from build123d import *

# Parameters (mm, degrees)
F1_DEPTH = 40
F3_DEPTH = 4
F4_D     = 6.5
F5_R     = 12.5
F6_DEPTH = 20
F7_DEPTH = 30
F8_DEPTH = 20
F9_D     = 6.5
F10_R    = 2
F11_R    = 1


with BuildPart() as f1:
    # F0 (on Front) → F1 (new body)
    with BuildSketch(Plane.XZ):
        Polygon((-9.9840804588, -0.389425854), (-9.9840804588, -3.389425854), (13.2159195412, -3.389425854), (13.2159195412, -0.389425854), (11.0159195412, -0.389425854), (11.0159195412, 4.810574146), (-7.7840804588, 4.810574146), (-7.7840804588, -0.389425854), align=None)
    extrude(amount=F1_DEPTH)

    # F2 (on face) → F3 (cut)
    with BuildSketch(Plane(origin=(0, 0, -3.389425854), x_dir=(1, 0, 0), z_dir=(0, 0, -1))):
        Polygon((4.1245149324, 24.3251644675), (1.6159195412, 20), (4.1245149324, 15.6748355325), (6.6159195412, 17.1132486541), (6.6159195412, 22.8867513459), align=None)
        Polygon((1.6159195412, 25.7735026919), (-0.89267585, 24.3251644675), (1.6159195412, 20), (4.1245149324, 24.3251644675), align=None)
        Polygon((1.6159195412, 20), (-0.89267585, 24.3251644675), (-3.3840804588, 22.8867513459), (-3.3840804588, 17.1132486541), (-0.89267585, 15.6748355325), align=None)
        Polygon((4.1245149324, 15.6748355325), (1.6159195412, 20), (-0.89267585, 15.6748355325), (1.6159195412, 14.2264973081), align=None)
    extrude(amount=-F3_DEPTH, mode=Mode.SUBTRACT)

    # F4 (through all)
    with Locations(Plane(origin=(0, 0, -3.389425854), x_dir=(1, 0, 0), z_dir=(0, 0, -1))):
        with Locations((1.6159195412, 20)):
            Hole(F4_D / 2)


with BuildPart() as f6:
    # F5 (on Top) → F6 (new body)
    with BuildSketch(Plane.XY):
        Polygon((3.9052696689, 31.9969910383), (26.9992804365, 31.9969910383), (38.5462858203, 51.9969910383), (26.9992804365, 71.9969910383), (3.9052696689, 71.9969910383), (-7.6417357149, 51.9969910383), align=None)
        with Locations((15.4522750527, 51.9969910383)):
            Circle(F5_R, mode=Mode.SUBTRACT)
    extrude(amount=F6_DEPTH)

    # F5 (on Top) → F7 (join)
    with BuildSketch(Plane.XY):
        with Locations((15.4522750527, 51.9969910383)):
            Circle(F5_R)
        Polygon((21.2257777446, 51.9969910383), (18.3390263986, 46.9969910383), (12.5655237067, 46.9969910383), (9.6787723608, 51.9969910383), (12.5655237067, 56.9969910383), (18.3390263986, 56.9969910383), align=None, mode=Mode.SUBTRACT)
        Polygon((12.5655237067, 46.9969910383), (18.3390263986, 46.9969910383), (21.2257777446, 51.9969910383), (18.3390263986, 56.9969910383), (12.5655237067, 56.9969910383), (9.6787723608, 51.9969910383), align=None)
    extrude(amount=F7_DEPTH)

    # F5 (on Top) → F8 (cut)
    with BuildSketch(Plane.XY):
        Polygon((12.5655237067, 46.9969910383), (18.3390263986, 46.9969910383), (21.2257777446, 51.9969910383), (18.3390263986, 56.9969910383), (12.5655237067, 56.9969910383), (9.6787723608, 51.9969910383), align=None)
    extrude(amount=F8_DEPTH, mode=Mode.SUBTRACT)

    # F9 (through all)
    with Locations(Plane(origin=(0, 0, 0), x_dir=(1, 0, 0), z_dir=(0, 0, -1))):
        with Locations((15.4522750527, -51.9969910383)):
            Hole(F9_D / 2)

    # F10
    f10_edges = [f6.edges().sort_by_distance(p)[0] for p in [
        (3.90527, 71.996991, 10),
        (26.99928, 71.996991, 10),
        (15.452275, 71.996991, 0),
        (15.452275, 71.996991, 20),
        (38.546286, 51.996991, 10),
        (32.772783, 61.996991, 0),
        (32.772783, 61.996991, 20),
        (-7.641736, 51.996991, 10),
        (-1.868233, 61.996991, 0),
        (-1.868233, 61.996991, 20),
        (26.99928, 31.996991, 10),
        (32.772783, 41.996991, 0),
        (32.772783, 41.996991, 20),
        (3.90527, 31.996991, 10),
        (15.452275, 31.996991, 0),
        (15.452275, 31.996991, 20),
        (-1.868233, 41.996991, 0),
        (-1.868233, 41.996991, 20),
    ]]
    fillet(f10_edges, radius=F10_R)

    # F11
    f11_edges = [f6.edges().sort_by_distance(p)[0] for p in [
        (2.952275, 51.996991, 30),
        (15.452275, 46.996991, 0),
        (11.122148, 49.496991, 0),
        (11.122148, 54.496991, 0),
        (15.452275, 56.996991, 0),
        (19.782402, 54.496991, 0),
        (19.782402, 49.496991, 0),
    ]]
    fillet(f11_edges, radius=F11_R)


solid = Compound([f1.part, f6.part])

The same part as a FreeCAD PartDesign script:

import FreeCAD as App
import Part
import Sketcher
Q = App.Units.Quantity


def edges_at(feature, points):
    """Names of the edges that pass closest to the given points."""
    edges = feature.Shape.Edges
    near = lambda p: min(range(len(edges)), key=lambda i: edges[i].distToShape(Part.Vertex(*p))[0])
    return sorted({f"Edge{near(p) + 1}" for p in points})


def add_polygon(sketch, points):
    """Adds a closed chain of lines whose ends are joined by coincident constraints."""
    first, n = sketch.GeometryCount, len(points)
    for a, b in zip(points, points[1:] + points[:1]):
        sketch.addGeometry(Part.LineSegment(App.Vector(*a, 0), App.Vector(*b, 0)), False)
    for i in range(n):
        sketch.addConstraint(Sketcher.Constraint("Coincident", first + i, 2, first + (i + 1) % n, 1))

doc = App.newDocument("Part")
body = doc.addObject("PartDesign::Body", "Body")

# Sketch on XZ plane
sketch1 = doc.addObject("Sketcher::SketchObject", "Sketch")
body.addObject(sketch1)
sketch1.AttachmentSupport = (doc.XZ_Plane, [""])
sketch1.MapMode = "FlatFace"
add_polygon(sketch1, [(-10, -0.4), (-10, -3.4), (13.2, -3.4), (13.2, -0.4), (11, -0.4), (11, 4.8), (-7.8, 4.8), (-7.8, -0.4)])  # lines 0-7
sketch1.addConstraint(Sketcher.Constraint("Vertical", 0))
sketch1.addConstraint(Sketcher.Constraint("Horizontal", 1))
sketch1.addConstraint(Sketcher.Constraint("Vertical", 2))
sketch1.addConstraint(Sketcher.Constraint("Horizontal", 3))
sketch1.addConstraint(Sketcher.Constraint("Vertical", 4))
sketch1.addConstraint(Sketcher.Constraint("Horizontal", 5))
sketch1.addConstraint(Sketcher.Constraint("Vertical", 6))
sketch1.addConstraint(Sketcher.Constraint("Horizontal", 7))
sketch1.addConstraint(Sketcher.Constraint("Horizontal", 3, 2, 6, 2))
sketch1.addConstraint(Sketcher.Constraint("Equal", 3, 7))
sketch1.addConstraint(Sketcher.Constraint("DistanceY", 0, 2, 0, 1, Q("3 mm")))
sketch1.addConstraint(Sketcher.Constraint("DistanceX", 1, 1, 1, 2, Q("23.2 mm")))
sketch1.addConstraint(Sketcher.Constraint("DistanceX", 3, 2, 3, 1, Q("2.2 mm")))
sketch1.addConstraint(Sketcher.Constraint("DistanceY", 4, 1, 4, 2, Q("5.2 mm")))
sketch1.addConstraint(Sketcher.Constraint("DistanceX", 0, 2, -1, 1, Q("9.98408 mm")))
sketch1.addConstraint(Sketcher.Constraint("DistanceY", 0, 2, -1, 1, Q("3.389426 mm")))
pad1 = doc.addObject("PartDesign::Pad", "Pad")
body.addObject(pad1)
pad1.Profile = sketch1
pad1.Length = 40

# Sketch on XY plane
sketch2 = doc.addObject("Sketcher::SketchObject", "Sketch001")
body.addObject(sketch2)
sketch2.AttachmentSupport = (doc.XY_Plane, [""])
sketch2.MapMode = "FlatFace"
sketch2.AttachmentOffset = App.Placement(App.Vector(0, 0, -3.389426), App.Rotation())
add_polygon(sketch2, [(4.1, -15.7), (6.6, -17.1), (6.6, -22.9), (4.1, -24.3), (1.6, -25.8), (-0.9, -24.3), (-3.4, -22.9), (-3.4, -17.1), (-0.9, -15.7), (1.6, -14.2)])  # lines 0-9
sketch2.addConstraint(Sketcher.Constraint("Vertical", 1))
sketch2.addConstraint(Sketcher.Constraint("Vertical", 6))
sketch2.addConstraint(Sketcher.Constraint("Parallel", 2, 3))
sketch2.addConstraint(Sketcher.Constraint("Parallel", 0, 4))
sketch2.addConstraint(Sketcher.Constraint("Parallel", 4, 5))
sketch2.addConstraint(Sketcher.Constraint("Parallel", 3, 7))
sketch2.addConstraint(Sketcher.Constraint("Parallel", 7, 8))
sketch2.addConstraint(Sketcher.Constraint("Parallel", 5, 9))
sketch2.addConstraint(Sketcher.Constraint("Horizontal", 2, 2, 4, 2))
sketch2.addConstraint(Sketcher.Constraint("Horizontal", 1, 2, 5, 2))
sketch2.addConstraint(Sketcher.Constraint("Horizontal", 0, 2, 6, 2))
sketch2.addConstraint(Sketcher.Constraint("Horizontal", 7, 2, 9, 2))
sketch2.addConstraint(Sketcher.Constraint("Vertical", 4, 2, 7, 2))
sketch2.addConstraint(Sketcher.Constraint("Vertical", 3, 2, 8, 2))
sketch2.addConstraint(Sketcher.Constraint("Angle", 0, Q("-30 deg")))
sketch2.addConstraint(Sketcher.Constraint("DistanceX", 3, 2, 1, 2, Q("5 mm")))
sketch2.addConstraint(Sketcher.Constraint("DistanceY", 1, 2, 1, 1, Q("5.773503 mm")))
sketch2.addConstraint(Sketcher.Constraint("DistanceX", -1, 1, 0, 2, Q("6.61592 mm")))
sketch2.addConstraint(Sketcher.Constraint("DistanceY", 0, 2, -1, 1, Q("17.113249 mm")))
sketch2.addConstraint(Sketcher.Constraint("DistanceY", 3, 2, 2, 2, Q("1.448338 mm")))
pocket1 = doc.addObject("PartDesign::Pocket", "Pocket")
body.addObject(pocket1)
pocket1.Profile = sketch2
pocket1.Length = 4
pocket1.Reversed = True

# Sketch on XY plane
sketch3 = doc.addObject("Sketcher::SketchObject", "Sketch002")
body.addObject(sketch3)
sketch3.AttachmentSupport = (doc.XY_Plane, [""])
sketch3.MapMode = "FlatFace"
sketch3.AttachmentOffset = App.Placement(App.Vector(0, 0, -3.389426), App.Rotation())
sketch3.addGeometry(Part.Circle(App.Vector(1.6, -20, 0), App.Vector(0, 0, 1), 3.2), False)
sketch3.addConstraint(Sketcher.Constraint("Diameter", 0, Q("6.5 mm")))
sketch3.addConstraint(Sketcher.Constraint("DistanceY", 0, 3, -1, 1, Q("20 mm")))
sketch3.addConstraint(Sketcher.Constraint("DistanceX", -1, 1, 0, 3, Q("1.61592 mm")))
doc.recompute()
hole = doc.addObject("PartDesign::Hole", "Hole")
body.addObject(hole)
hole.Profile = sketch3
hole.ThreadType = "None"
hole.Diameter = 6.5
hole.DepthType = "ThroughAll"
hole.Reversed = True
body2 = doc.addObject("PartDesign::Body", "Body001")

# Sketch on XY plane
sketch4 = doc.addObject("Sketcher::SketchObject", "Sketch003")
body2.addObject(sketch4)
sketch4.AttachmentSupport = (doc.getObject("XY_Plane001"), [""])
sketch4.MapMode = "FlatFace"
add_polygon(sketch4, [(4, 32), (27, 32), (39, 52), (27, 72), (4, 72), (-8, 52)])  # lines 0-5
sketch4.addGeometry(Part.Circle(App.Vector(15, 52, 0), App.Vector(0, 0, 1), 12), False)  # 6
sketch4.addConstraint(Sketcher.Constraint("Horizontal", 0))
sketch4.addConstraint(Sketcher.Constraint("Horizontal", 3))
sketch4.addConstraint(Sketcher.Constraint("Parallel", 1, 4))
sketch4.addConstraint(Sketcher.Constraint("Parallel", 2, 5))
sketch4.addConstraint(Sketcher.Constraint("Horizontal", 6, 3, 1, 2))
sketch4.addConstraint(Sketcher.Constraint("Horizontal", 1, 2, 4, 2))
sketch4.addConstraint(Sketcher.Constraint("Vertical", 0, 2, 2, 2))
sketch4.addConstraint(Sketcher.Constraint("Vertical", 3, 2, 5, 2))
sketch4.addConstraint(Sketcher.Constraint("Diameter", 6, Q("25 mm")))
sketch4.addConstraint(Sketcher.Constraint("Angle", 1, Q("60 deg")))
sketch4.addConstraint(Sketcher.Constraint("DistanceY", 0, 2, 6, 3, Q("20 mm")))
sketch4.addConstraint(Sketcher.Constraint("DistanceX", 0, 1, 0, 2, Q("23.094011 mm")))
sketch4.addConstraint(Sketcher.Constraint("DistanceY", -1, 1, 6, 3, Q("51.996991 mm")))
sketch4.addConstraint(Sketcher.Constraint("DistanceX", -1, 1, 0, 2, Q("26.99928 mm")))
sketch4.addConstraint(Sketcher.Constraint("DistanceX", 6, 3, 1, 2, Q("23.094011 mm")))
pad2 = doc.addObject("PartDesign::Pad", "Pad001")
body2.addObject(pad2)
pad2.Profile = sketch4
pad2.Length = 20

# Sketch on XY plane
sketch5 = doc.addObject("Sketcher::SketchObject", "Sketch004")
body2.addObject(sketch5)
sketch5.AttachmentSupport = (doc.getObject("XY_Plane001"), [""])
sketch5.MapMode = "FlatFace"
sketch5.addGeometry(Part.Circle(App.Vector(15, 52, 0), App.Vector(0, 0, 1), 12), False)
sketch5.addConstraint(Sketcher.Constraint("Diameter", 0, Q("25 mm")))
sketch5.addConstraint(Sketcher.Constraint("DistanceY", -1, 1, 0, 3, Q("51.996991 mm")))
sketch5.addConstraint(Sketcher.Constraint("DistanceX", -1, 1, 0, 3, Q("15.452275 mm")))
pad3 = doc.addObject("PartDesign::Pad", "Pad002")
body2.addObject(pad3)
pad3.Profile = sketch5
pad3.Length = 30

# Sketch on XY plane
sketch6 = doc.addObject("Sketcher::SketchObject", "Sketch005")
body2.addObject(sketch6)
sketch6.AttachmentSupport = (doc.getObject("XY_Plane001"), [""])
sketch6.MapMode = "FlatFace"
add_polygon(sketch6, [(13, 47), (18, 47), (21, 52), (18, 57), (13, 57), (10, 52)])  # lines 0-5
sketch6.addConstraint(Sketcher.Constraint("Horizontal", 0))
sketch6.addConstraint(Sketcher.Constraint("Horizontal", 3))
sketch6.addConstraint(Sketcher.Constraint("Parallel", 1, 4))
sketch6.addConstraint(Sketcher.Constraint("Parallel", 2, 5))
sketch6.addConstraint(Sketcher.Constraint("Horizontal", 1, 2, 4, 2))
sketch6.addConstraint(Sketcher.Constraint("Vertical", 0, 2, 2, 2))
sketch6.addConstraint(Sketcher.Constraint("Vertical", 3, 2, 5, 2))
sketch6.addConstraint(Sketcher.Constraint("Angle", 1, Q("60 deg")))
sketch6.addConstraint(Sketcher.Constraint("DistanceY", 0, 2, 1, 2, Q("5 mm")))
sketch6.addConstraint(Sketcher.Constraint("DistanceX", 0, 1, 0, 2, Q("5.773503 mm")))
sketch6.addConstraint(Sketcher.Constraint("DistanceY", -1, 1, 0, 2, Q("46.996991 mm")))
sketch6.addConstraint(Sketcher.Constraint("DistanceX", -1, 1, 0, 2, Q("18.339026 mm")))
pocket2 = doc.addObject("PartDesign::Pocket", "Pocket001")
body2.addObject(pocket2)
pocket2.Profile = sketch6
pocket2.Length = 20
pocket2.Reversed = True

# Sketch on XY plane
sketch7 = doc.addObject("Sketcher::SketchObject", "Sketch006")
body2.addObject(sketch7)
sketch7.AttachmentSupport = (doc.getObject("XY_Plane001"), [""])
sketch7.MapMode = "FlatFace"
sketch7.addGeometry(Part.Circle(App.Vector(15.5, 52, 0), App.Vector(0, 0, 1), 3.2), False)
sketch7.addConstraint(Sketcher.Constraint("Diameter", 0, Q("6.5 mm")))
sketch7.addConstraint(Sketcher.Constraint("DistanceY", -1, 1, 0, 3, Q("51.996991 mm")))
sketch7.addConstraint(Sketcher.Constraint("DistanceX", -1, 1, 0, 3, Q("15.452275 mm")))
doc.recompute()
hole2 = doc.addObject("PartDesign::Hole", "Hole001")
body2.addObject(hole2)
hole2.Profile = sketch7
hole2.ThreadType = "None"
hole2.Diameter = 6.5
hole2.DepthType = "ThroughAll"
hole2.Reversed = True
doc.recompute()

fillet = doc.addObject("PartDesign::Fillet", "Fillet")
body2.addObject(fillet)
fillet.Base = (hole2, edges_at(hole2, [
    (3.905, 71.997, 10),
    (26.999, 71.997, 10),
    (15.452, 71.997, 0),
    (15.452, 71.997, 20),
    (38.546, 51.997, 10),
    (32.773, 61.997, 0),
    (32.773, 61.997, 20),
    (-7.642, 51.997, 10),
    (-1.868, 61.997, 0),
    (-1.868, 61.997, 20),
    (26.999, 31.997, 10),
    (32.773, 41.997, 0),
    (32.773, 41.997, 20),
    (3.905, 31.997, 10),
    (15.452, 31.997, 0),
    (15.452, 31.997, 20),
    (-1.868, 41.997, 0),
    (-1.868, 41.997, 20),
]))
fillet.Radius = 2
doc.recompute()

fillet2 = doc.addObject("PartDesign::Fillet", "Fillet001")
body2.addObject(fillet2)
fillet2.Base = (fillet, edges_at(fillet, [
    (2.952, 51.997, 30),
    (15.452, 46.997, 0),
    (11.122, 49.497, 0),
    (11.122, 54.497, 0),
    (15.452, 56.997, 0),
    (19.782, 54.497, 0),
    (19.782, 49.497, 0),
]))
fillet2.Radius = 1

doc.recompute()
